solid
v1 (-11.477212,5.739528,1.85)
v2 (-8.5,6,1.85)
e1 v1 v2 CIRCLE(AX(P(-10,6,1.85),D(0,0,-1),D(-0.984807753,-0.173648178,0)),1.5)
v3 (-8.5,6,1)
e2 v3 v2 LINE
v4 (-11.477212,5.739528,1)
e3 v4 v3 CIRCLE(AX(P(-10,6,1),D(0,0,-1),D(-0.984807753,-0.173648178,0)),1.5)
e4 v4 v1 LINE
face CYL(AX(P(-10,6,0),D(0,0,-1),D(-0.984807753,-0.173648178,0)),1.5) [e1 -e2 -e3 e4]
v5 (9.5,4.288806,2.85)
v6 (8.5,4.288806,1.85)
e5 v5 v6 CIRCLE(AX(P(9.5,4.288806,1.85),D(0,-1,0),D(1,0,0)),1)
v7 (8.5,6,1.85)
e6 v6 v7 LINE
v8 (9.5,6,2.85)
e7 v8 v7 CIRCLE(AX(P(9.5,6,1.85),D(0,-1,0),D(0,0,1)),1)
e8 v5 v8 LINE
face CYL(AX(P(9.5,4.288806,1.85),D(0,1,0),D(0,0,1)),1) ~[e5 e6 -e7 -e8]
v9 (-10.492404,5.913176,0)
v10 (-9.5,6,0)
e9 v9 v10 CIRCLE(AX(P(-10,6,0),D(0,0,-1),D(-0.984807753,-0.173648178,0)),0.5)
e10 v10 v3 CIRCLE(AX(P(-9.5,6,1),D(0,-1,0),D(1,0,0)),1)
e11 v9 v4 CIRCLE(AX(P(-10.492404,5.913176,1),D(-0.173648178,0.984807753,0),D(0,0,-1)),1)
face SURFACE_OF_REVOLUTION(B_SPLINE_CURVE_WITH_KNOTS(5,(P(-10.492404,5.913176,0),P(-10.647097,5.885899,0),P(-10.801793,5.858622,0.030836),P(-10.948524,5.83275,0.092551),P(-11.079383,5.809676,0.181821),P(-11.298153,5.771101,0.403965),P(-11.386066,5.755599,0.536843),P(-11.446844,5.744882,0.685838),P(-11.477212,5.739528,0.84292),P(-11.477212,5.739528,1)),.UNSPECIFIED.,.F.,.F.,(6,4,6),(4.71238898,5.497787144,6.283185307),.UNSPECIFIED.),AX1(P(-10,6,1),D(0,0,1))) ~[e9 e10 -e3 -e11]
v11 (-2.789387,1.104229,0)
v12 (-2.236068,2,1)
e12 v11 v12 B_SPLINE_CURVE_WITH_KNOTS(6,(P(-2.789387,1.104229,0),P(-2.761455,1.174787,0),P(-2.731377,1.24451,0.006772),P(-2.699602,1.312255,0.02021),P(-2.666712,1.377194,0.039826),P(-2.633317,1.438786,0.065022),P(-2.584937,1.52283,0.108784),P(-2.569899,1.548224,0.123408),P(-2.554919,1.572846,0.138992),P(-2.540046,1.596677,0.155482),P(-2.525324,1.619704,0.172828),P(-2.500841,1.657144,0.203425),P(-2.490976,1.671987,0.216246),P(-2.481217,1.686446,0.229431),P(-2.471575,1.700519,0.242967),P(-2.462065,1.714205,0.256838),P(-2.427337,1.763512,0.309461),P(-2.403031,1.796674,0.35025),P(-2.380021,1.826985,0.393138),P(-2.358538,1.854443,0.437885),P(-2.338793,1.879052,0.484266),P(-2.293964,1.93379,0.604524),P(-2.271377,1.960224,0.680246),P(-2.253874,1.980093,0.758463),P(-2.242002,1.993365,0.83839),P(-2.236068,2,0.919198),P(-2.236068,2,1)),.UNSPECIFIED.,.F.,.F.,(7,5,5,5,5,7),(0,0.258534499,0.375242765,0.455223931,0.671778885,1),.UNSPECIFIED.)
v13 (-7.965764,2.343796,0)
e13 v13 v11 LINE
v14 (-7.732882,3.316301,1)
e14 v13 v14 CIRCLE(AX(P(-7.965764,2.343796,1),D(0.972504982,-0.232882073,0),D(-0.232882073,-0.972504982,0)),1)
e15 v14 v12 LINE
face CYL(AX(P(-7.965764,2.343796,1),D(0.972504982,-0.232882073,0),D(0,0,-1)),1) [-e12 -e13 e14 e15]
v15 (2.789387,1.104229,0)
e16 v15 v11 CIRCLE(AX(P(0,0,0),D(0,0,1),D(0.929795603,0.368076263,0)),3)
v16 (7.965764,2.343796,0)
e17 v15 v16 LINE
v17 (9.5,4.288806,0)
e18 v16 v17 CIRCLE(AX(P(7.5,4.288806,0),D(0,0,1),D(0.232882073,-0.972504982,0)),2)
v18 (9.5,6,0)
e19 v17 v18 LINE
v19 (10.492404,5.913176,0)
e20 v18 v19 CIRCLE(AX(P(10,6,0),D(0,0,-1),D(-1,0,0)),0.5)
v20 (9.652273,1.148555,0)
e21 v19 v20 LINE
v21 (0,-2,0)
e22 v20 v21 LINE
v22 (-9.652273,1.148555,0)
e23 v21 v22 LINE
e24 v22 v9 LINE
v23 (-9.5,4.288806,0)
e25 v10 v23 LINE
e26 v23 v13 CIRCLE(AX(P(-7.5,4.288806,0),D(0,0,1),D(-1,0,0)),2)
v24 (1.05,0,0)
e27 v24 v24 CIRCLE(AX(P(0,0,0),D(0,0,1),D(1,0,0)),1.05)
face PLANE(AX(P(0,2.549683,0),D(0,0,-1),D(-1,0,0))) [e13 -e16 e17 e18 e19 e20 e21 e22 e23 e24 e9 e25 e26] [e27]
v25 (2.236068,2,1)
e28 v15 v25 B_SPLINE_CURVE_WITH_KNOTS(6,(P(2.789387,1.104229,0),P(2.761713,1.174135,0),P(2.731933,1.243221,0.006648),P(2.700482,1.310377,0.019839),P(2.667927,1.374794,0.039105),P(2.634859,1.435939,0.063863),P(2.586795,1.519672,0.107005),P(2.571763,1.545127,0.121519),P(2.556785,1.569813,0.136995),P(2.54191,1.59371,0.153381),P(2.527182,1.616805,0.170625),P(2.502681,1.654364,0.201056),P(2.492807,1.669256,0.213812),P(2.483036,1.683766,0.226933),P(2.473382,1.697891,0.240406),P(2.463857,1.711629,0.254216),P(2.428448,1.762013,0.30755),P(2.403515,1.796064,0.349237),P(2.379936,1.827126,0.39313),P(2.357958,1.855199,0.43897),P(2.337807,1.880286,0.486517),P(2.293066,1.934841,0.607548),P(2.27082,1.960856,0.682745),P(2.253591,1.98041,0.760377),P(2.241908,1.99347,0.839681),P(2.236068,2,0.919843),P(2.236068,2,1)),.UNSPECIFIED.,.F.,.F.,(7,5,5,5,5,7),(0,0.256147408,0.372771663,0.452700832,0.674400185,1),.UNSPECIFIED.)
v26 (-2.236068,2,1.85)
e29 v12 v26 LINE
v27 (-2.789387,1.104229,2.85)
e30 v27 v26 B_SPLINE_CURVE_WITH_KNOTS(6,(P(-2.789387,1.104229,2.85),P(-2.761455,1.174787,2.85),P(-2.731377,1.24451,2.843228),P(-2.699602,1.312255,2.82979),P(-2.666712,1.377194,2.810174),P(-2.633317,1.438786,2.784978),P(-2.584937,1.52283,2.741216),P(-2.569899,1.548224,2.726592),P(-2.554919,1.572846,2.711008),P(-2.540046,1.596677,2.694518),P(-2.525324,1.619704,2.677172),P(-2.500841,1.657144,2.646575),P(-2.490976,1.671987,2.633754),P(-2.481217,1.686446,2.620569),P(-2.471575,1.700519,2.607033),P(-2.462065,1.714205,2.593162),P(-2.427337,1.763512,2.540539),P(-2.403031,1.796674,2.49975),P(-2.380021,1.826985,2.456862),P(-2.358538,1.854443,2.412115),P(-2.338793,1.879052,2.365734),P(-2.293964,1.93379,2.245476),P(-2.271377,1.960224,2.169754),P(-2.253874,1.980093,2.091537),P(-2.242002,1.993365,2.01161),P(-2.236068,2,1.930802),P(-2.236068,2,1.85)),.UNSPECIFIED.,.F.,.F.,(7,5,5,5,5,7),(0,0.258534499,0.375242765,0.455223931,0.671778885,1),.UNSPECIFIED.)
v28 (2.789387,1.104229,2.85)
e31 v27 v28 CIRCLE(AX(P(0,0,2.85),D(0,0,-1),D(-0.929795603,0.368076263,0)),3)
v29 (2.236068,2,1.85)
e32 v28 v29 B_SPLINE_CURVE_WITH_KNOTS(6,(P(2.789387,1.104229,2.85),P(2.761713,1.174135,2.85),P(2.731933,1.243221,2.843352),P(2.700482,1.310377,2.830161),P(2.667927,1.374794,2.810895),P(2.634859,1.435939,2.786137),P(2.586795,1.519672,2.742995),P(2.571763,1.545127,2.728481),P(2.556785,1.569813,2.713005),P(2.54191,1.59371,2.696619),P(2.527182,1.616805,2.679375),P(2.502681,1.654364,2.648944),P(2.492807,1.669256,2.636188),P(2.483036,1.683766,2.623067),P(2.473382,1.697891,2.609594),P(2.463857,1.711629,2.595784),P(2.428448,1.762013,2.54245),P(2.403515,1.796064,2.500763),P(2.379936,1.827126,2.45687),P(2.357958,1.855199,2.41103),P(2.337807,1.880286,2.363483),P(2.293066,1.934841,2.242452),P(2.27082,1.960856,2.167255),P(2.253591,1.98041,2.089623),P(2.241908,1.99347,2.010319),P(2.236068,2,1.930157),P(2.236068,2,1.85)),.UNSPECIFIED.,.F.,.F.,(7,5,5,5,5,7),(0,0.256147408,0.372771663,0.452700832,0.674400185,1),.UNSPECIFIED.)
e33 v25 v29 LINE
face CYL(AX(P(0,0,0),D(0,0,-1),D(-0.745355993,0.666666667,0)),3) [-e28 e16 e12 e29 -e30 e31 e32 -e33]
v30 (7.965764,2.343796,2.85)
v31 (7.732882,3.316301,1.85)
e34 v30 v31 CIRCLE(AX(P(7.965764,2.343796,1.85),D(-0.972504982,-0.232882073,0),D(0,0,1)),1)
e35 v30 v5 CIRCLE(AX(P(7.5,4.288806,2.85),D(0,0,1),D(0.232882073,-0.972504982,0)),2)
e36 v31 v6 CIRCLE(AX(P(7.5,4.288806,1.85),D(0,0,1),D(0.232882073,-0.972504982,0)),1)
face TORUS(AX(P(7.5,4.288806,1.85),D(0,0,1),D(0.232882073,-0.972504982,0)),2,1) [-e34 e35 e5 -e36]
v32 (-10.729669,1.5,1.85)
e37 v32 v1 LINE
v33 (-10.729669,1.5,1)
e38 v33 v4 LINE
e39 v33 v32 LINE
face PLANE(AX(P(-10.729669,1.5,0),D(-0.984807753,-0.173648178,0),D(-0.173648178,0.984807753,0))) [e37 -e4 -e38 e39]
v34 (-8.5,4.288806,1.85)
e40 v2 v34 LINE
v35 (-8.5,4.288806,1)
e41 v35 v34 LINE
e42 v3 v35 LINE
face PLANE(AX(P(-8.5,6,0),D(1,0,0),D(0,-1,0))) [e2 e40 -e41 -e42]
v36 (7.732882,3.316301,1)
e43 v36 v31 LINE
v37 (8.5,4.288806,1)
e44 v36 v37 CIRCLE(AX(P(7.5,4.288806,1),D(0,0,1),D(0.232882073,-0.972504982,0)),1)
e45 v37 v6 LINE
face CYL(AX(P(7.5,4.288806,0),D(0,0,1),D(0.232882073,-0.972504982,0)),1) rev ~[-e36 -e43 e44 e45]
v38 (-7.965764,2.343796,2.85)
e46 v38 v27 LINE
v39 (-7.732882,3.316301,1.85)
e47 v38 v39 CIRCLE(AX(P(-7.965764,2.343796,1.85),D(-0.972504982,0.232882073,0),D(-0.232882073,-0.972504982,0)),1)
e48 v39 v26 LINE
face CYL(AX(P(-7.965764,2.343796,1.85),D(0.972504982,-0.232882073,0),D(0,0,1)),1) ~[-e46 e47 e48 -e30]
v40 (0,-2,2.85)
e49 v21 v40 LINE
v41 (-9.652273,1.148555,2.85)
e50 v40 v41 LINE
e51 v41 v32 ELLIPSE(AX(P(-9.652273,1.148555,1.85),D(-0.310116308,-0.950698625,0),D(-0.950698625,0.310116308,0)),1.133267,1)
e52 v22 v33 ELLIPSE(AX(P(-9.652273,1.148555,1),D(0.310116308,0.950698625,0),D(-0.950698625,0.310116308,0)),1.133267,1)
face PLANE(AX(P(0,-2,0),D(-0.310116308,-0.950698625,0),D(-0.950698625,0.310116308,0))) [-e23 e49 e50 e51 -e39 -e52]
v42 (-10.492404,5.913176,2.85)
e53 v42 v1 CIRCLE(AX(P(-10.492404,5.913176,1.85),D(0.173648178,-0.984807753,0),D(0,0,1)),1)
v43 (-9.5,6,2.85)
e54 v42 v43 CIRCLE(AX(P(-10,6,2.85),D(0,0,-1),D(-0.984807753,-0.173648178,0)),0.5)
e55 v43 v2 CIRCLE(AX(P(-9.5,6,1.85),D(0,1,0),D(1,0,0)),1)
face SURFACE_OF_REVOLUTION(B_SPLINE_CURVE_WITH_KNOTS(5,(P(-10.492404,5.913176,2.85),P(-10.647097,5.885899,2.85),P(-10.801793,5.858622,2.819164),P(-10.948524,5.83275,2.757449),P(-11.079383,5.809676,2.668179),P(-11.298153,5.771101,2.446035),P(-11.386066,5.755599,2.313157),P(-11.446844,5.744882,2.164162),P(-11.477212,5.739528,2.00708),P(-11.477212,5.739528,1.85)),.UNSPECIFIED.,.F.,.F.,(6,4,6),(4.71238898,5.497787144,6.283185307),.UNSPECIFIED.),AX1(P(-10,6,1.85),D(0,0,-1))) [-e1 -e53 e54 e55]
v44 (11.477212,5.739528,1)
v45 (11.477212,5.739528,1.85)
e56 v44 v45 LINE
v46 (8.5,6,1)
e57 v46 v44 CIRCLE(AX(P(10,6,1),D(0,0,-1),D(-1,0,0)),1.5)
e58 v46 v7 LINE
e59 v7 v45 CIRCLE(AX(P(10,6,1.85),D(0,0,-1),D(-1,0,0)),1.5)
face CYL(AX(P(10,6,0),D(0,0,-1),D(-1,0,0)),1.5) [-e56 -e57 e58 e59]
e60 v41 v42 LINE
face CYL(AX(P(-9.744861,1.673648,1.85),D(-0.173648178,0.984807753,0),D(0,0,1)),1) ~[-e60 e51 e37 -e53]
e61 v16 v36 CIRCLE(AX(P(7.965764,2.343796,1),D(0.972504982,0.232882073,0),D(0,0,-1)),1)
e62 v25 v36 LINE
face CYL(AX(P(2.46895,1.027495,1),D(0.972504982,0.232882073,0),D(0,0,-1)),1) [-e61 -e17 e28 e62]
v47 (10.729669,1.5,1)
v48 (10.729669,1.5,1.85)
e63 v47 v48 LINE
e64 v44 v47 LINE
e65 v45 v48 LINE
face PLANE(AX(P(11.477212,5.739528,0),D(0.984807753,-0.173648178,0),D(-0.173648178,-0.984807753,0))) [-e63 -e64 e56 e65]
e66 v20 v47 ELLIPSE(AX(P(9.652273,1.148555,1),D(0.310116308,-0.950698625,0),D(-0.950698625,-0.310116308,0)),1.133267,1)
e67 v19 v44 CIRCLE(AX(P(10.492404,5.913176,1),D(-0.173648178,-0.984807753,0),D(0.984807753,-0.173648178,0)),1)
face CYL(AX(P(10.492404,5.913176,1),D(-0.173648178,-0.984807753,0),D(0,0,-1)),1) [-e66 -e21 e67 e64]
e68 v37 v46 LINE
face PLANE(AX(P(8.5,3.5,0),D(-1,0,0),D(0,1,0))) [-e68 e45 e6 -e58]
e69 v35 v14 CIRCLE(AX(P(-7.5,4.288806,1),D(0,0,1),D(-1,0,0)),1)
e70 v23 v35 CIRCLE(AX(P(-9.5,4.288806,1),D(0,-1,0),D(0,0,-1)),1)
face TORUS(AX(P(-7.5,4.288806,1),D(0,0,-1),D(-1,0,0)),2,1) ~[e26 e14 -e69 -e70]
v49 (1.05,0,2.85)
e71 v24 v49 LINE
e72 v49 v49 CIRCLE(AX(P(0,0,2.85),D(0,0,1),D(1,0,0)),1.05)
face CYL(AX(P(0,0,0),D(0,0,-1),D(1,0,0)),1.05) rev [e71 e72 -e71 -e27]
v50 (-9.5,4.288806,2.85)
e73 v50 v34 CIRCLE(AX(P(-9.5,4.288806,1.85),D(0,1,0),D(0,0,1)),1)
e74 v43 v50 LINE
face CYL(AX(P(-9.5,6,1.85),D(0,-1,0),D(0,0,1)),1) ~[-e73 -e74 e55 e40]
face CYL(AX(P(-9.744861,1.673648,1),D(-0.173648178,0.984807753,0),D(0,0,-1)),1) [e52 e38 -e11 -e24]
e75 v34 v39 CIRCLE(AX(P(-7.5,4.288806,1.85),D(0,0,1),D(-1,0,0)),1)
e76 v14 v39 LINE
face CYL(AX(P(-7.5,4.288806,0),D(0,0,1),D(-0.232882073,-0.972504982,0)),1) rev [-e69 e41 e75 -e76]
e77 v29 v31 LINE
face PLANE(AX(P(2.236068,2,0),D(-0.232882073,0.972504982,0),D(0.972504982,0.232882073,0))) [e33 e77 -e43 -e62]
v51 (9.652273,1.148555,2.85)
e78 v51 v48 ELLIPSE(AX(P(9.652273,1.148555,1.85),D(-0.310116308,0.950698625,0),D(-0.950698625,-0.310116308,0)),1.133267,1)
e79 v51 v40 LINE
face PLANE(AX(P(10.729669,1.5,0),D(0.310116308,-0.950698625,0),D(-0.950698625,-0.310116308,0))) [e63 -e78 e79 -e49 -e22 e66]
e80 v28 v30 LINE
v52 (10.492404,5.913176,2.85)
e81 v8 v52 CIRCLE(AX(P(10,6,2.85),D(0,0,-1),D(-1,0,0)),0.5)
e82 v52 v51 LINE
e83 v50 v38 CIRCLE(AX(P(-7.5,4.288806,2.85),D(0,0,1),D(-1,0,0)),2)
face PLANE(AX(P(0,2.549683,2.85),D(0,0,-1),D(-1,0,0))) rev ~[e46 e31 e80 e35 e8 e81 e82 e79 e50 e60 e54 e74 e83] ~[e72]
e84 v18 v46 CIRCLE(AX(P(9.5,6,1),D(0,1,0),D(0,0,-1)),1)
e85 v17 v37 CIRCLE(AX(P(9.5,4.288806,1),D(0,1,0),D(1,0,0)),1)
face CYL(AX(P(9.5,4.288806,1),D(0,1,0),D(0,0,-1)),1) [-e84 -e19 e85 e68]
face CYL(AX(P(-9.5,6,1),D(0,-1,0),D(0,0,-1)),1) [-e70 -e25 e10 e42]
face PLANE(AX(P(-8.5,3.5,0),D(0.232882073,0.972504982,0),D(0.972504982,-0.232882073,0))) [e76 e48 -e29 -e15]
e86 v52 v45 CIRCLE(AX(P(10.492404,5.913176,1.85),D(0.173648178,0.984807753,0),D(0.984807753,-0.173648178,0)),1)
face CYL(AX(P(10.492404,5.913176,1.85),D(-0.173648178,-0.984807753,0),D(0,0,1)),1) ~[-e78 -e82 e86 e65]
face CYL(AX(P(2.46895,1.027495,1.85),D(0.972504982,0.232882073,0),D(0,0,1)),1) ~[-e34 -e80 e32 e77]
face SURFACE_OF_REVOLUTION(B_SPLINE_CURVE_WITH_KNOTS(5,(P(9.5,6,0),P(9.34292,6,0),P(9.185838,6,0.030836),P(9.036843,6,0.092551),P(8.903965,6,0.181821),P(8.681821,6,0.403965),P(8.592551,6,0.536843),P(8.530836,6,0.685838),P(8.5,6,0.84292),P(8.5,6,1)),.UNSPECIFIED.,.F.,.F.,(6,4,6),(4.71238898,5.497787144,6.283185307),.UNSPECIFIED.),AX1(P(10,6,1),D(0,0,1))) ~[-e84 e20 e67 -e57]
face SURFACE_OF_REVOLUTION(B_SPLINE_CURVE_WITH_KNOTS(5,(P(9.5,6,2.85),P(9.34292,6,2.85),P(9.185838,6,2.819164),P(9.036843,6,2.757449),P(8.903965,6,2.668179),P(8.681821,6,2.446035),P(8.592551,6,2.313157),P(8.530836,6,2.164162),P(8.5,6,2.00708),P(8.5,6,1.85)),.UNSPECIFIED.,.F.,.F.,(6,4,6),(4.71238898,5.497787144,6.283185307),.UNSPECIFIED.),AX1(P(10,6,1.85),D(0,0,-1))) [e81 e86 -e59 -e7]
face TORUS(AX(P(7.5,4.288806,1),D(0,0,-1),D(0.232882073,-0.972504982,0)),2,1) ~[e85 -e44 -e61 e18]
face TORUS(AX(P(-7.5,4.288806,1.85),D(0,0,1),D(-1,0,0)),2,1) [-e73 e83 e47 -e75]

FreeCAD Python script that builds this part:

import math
import FreeCAD as App
import Part
import Sketcher

V = App.Vector
Q = App.Units.Quantity


def edges_at(feature, points):
    """Names of the edges that pass closest to the given points."""
    edges = feature.Shape.Edges
    near = lambda p: min(range(len(edges)), key=lambda i: edges[i].distToShape(Part.Vertex(*p))[0])
    return sorted({f"Edge{near(p) + 1}" for p in points})

doc = App.newDocument("Part")
body = doc.addObject("PartDesign::Body", "Body")

# Sketch on XY plane
sketch1 = doc.addObject("Sketcher::SketchObject", "Sketch")
body.addObject(sketch1)
sketch1.AttachmentSupport = (doc.XY_Plane, [""])
sketch1.MapMode = "FlatFace"
sketch1.addGeometry([
    Part.LineSegment(V(8.5, 3.5, 0), V(2.236068, 2, 0)),  # 0
    Part.ArcOfCircle(Part.Circle(V(0, 0, 0), V(0, 0, 1), 3), math.radians(41.810315), math.radians(138.189685)),  # 1
    Part.LineSegment(V(-2.236068, 2, 0), V(-8.5, 3.5, 0)),  # 2
    Part.LineSegment(V(-8.5, 3.5, 0), V(-8.5, 6, 0)),  # 3
    Part.ArcOfCircle(Part.Circle(V(-10, 6, 0), V(0, 0, 1), 1.5), math.radians(0), math.radians(190)),  # 4
    Part.LineSegment(V(-11.477212, 5.739528, 0), V(-10.729669, 1.5, 0)),  # 5
    Part.LineSegment(V(-10.729669, 1.5, 0), V(0, -2, 0)),  # 6
    Part.LineSegment(V(0, -2, 0), V(10.729669, 1.5, 0)),  # 7
    Part.LineSegment(V(10.729669, 1.5, 0), V(11.477212, 5.739528, 0)),  # 8
    Part.ArcOfCircle(Part.Circle(V(10, 6, 0), V(0, 0, 1), 1.5), math.radians(-10), math.radians(180)),  # 9
    Part.LineSegment(V(8.5, 6, 0), V(8.5, 3.5, 0)),  # 10
    Part.Circle(V(0, 0, 0), V(0, 0, 1), 1.05),  # 11
], False)
sketch1.addConstraint([
    Sketcher.Constraint("Coincident", 0, 2, 1, 1),
    Sketcher.Constraint("Coincident", 1, 2, 2, 1),
    Sketcher.Constraint("Coincident", 2, 2, 3, 1),
    Sketcher.Constraint("Tangent", 3, 2, 4, 1),
    Sketcher.Constraint("Tangent", 4, 2, 5, 1),
    Sketcher.Constraint("Coincident", 5, 2, 6, 1),
    Sketcher.Constraint("Coincident", 6, 2, 7, 1),
    Sketcher.Constraint("Coincident", 7, 2, 8, 1),
    Sketcher.Constraint("Tangent", 8, 2, 9, 1),
    Sketcher.Constraint("Tangent", 9, 2, 10, 1),
    Sketcher.Constraint("Coincident", 10, 2, 0, 1),
    Sketcher.Constraint("Vertical", 3),
    Sketcher.Constraint("Vertical", 10),
    Sketcher.Constraint("Coincident", 1, 3, -1, 1),
    Sketcher.Constraint("Coincident", 11, 3, -1, 1),
    Sketcher.Constraint("Equal", 4, 9),
    Sketcher.Constraint("Symmetric", 4, 3, 9, 3, -2),
    Sketcher.Constraint("Symmetric", 5, 2, 7, 2, -2),
    Sketcher.Constraint("PointOnObject", 6, 2, -2),
    Sketcher.Constraint("Horizontal", 0, 2, 1, 2),
    Sketcher.Constraint("Horizontal", 2, 2, 10, 2),
    Sketcher.Constraint("Radius", 1, 3.0),
    Sketcher.Constraint("Diameter", 11, 2.1),
    Sketcher.Constraint("Radius", 4, 1.5),
    Sketcher.Constraint("Angle", 5, Q("-80 deg")),
    Sketcher.Constraint("DistanceY", 3, 1, 3, 2, 2.5),
    Sketcher.Constraint("DistanceX", 4, 3, -1, 1, 10.0),
    Sketcher.Constraint("DistanceY", -1, 1, 4, 3, 6.0),
    Sketcher.Constraint("DistanceY", -1, 1, 0, 2, 2.0),
    Sketcher.Constraint("DistanceY", 6, 2, -1, 1, 2.0),
    Sketcher.Constraint("DistanceY", 5, 2, 2, 2, 2.0),
])
pad1 = doc.addObject("PartDesign::Pad", "Pad")
body.addObject(pad1)
pad1.Profile = sketch1
pad1.Length = 2.85
doc.recompute()

fillet = doc.addObject("PartDesign::Fillet", "Fillet")
body.addObject(fillet)
fillet.Base = (pad1, edges_at(pad1, [(8.5, 3.5, 1.425), (-8.5, 3.5, 1.425)]))
fillet.Radius = 1
doc.recompute()

fillet2 = doc.addObject("PartDesign::Fillet", "Fillet001")
body.addObject(fillet2)
fillet2.Base = (fillet, edges_at(fillet, [
    (8.5, 5.144, 0),
    (10.131, 7.494, 0),
    (11.103, 3.62, 0),
    (-11.103, 3.62, 0),
    (-10.131, 7.494, 0),
    (-10.131, 7.494, 2.85),
    (-4.984, 2.658, 0),
    (-11.103, 3.62, 2.85),
    (11.103, 3.62, 2.85),
    (10.131, 7.494, 2.85),
    (8.5, 5.144, 2.85),
    (-8.5, 5.144, 0),
    (-8.5, 5.144, 2.85),
    (4.984, 2.658, 0),
    (4.984, 2.658, 2.85),
    (-8.285, 3.669, 0),
    (-8.285, 3.669, 2.85),
    (8.285, 3.669, 0),
    (8.285, 3.669, 2.85),
    (-4.984, 2.658, 2.85),
]))
fillet2.Radius = 1

doc.recompute()
